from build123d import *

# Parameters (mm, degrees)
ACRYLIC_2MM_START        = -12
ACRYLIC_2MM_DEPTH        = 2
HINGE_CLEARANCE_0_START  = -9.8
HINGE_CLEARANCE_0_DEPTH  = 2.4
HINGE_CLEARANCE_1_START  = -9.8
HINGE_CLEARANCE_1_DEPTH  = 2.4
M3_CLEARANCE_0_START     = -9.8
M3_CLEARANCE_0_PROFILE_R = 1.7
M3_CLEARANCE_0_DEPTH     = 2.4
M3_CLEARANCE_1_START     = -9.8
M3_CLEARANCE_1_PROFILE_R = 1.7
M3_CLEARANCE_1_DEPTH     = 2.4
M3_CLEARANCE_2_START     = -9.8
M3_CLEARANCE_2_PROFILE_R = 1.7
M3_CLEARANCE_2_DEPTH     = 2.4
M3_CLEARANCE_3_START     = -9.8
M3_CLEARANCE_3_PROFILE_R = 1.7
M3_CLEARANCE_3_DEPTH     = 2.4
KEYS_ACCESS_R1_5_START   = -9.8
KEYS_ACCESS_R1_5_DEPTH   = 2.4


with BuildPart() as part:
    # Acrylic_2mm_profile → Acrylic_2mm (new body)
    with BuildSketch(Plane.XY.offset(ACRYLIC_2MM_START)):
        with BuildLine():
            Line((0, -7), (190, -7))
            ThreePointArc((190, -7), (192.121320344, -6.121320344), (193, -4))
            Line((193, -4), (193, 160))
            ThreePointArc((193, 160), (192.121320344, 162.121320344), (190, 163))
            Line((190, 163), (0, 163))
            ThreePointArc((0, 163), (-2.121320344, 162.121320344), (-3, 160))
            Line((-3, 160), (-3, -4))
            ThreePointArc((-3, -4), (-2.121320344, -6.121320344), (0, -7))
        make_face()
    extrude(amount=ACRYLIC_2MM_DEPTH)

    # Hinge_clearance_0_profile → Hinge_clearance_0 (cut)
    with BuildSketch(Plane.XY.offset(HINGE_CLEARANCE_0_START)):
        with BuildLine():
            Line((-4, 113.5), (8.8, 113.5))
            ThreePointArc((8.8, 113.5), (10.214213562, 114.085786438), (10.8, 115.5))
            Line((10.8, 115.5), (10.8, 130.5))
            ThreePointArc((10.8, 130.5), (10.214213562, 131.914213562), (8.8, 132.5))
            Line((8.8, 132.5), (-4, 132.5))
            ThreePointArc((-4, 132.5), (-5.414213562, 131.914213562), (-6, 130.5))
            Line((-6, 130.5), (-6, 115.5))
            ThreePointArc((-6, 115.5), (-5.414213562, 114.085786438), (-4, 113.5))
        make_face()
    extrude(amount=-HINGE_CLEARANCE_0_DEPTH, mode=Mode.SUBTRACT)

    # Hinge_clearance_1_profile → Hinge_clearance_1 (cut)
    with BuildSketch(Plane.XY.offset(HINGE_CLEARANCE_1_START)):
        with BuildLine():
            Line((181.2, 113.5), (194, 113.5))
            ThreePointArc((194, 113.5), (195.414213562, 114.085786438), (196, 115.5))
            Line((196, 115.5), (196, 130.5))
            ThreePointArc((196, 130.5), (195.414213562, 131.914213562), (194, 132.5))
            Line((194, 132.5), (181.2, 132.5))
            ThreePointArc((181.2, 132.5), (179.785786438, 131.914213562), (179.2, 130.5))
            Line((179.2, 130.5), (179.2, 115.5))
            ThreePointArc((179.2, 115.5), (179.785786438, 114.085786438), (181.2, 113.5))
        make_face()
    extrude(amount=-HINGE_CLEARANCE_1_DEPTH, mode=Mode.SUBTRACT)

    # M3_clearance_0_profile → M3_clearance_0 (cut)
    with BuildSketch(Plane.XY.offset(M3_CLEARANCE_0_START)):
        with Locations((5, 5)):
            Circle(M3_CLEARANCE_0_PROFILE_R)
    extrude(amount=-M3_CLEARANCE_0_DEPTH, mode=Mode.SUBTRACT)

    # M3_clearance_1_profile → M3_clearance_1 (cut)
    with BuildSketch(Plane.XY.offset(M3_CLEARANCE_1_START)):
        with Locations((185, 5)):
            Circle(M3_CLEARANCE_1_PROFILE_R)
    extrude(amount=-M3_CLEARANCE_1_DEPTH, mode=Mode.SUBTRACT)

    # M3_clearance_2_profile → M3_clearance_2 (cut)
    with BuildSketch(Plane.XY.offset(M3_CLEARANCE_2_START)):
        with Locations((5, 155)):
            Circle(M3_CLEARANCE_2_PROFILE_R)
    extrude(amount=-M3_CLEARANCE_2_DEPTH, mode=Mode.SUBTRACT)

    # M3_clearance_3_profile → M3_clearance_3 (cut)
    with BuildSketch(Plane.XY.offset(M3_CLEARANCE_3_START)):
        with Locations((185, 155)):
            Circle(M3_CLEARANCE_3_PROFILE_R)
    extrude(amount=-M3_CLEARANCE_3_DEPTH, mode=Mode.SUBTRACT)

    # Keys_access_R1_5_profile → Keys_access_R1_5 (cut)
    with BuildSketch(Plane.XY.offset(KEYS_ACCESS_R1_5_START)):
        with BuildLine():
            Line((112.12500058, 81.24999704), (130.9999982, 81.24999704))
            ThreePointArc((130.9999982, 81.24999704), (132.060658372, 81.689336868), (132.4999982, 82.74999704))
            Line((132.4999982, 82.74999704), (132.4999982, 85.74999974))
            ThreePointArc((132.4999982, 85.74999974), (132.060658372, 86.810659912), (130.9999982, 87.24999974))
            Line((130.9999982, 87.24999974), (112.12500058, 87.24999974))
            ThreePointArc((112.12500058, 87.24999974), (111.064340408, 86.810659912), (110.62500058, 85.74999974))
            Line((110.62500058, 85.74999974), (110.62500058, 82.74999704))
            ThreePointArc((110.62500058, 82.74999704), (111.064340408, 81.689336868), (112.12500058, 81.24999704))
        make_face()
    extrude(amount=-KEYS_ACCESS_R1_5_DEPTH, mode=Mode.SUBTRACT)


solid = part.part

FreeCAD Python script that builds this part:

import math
import FreeCAD as App
import Part
import Sketcher
Q = App.Units.Quantity

doc = App.newDocument("Part")
params = doc.addObject("Spreadsheet::Sheet", "Params")
for row, (alias, value) in enumerate([
    ("sketch1_radius", "3 mm"),
    ("sketch1_width", "190 mm"),
    ("sketch1_height", "164 mm"),
    ("pad1_length", "2 mm"),
    ("sketch2_radius", "2 mm"),
    ("sketch2_height", "15 mm"),
    ("sketch2_width", "12.8 mm"),
    ("pocket1_length", "2.4 mm"),
    ("sketch3_radius", "2 mm"),
    ("sketch3_height", "15 mm"),
    ("sketch3_width", "12.8 mm"),
    ("pocket2_length", "2.4 mm"),
    ("sketch4_diameter", "3.4 mm"),
    ("pocket3_length", "2.4 mm"),
    ("sketch5_diameter", "3.4 mm"),
    ("pocket4_length", "2.4 mm"),
    ("sketch6_diameter", "3.4 mm"),
    ("pocket5_length", "2.4 mm"),
    ("sketch7_diameter", "3.4 mm"),
    ("pocket6_length", "2.4 mm"),
    ("sketch8_radius", "1.5 mm"),
    ("pocket7_length", "2.4 mm"),
], start=1):
    params.set(f"A{row}", alias)
    params.set(f"B{row}", "=" + value)
    params.setAlias(f"B{row}", alias)

body = doc.addObject("PartDesign::Body", "Body")

sketch1 = body.newObject("Sketcher::SketchObject", "Sketch")
sketch1.AttachmentSupport = (doc.getObject("XY_Plane"), [""])
sketch1.MapMode = "FlatFace"
sketch1.AttachmentOffset = App.Placement(App.Vector(0, 0, -12), App.Rotation())
sketch1.addGeometry([
    Part.LineSegment(App.Vector(0, -7, 0), App.Vector(190, -7, 0)),
    Part.ArcOfCircle(Part.Circle(App.Vector(190, -4, 0), App.Vector(0, 0, 1), 3), math.radians(-90), math.radians(0)),
    Part.LineSegment(App.Vector(193, -4, 0), App.Vector(193, 160, 0)),
    Part.ArcOfCircle(Part.Circle(App.Vector(190, 160, 0), App.Vector(0, 0, 1), 3), math.radians(0), math.radians(90)),
    Part.LineSegment(App.Vector(190, 163, 0), App.Vector(0, 163, 0)),
    Part.ArcOfCircle(Part.Circle(App.Vector(0, 160, 0), App.Vector(0, 0, 1), 3), math.radians(90), math.radians(180)),
    Part.LineSegment(App.Vector(-3, 160, 0), App.Vector(-3, -4, 0)),
    Part.ArcOfCircle(Part.Circle(App.Vector(0, -4, 0), App.Vector(0, 0, 1), 3), math.radians(180), math.radians(270)),
], False)
sketch1.addConstraint([
    Sketcher.Constraint("Tangent", 0, 2, 1, 1),
    Sketcher.Constraint("Tangent", 1, 2, 2, 1),
    Sketcher.Constraint("Tangent", 2, 2, 3, 1),
    Sketcher.Constraint("Tangent", 3, 2, 4, 1),
    Sketcher.Constraint("Tangent", 4, 2, 5, 1),
    Sketcher.Constraint("Tangent", 5, 2, 6, 1),
    Sketcher.Constraint("Tangent", 6, 2, 7, 1),
    Sketcher.Constraint("Tangent", 7, 2, 0, 1),
    Sketcher.Constraint("Horizontal", 0),
    Sketcher.Constraint("Vertical", 2),
    Sketcher.Constraint("Horizontal", 4),
    Sketcher.Constraint("Vertical", 6),
    Sketcher.Constraint("Equal", 1, 3),
    Sketcher.Constraint("Equal", 3, 5),
    Sketcher.Constraint("Equal", 5, 7),
    Sketcher.Constraint("PointOnObject", 5, 3, -2),
    Sketcher.Constraint("Radius", 1, Q("3 mm")),
    Sketcher.Constraint("DistanceX", 0, 1, 0, 2, Q("190 mm")),
    Sketcher.Constraint("DistanceY", 2, 1, 2, 2, Q("164 mm")),
    Sketcher.Constraint("DistanceY", 1, 3, -1, 1, Q("4 mm")),
])
sketch1.setExpression("Constraints[16]", "Params.sketch1_radius")
sketch1.setExpression("Constraints[17]", "Params.sketch1_width")
sketch1.setExpression("Constraints[18]", "Params.sketch1_height")
pad1 = body.newObject("PartDesign::Pad", "Pad")
pad1.Profile = sketch1
pad1.setExpression("Length", "Params.pad1_length")

sketch2 = body.newObject("Sketcher::SketchObject", "Sketch001")
sketch2.AttachmentSupport = (doc.getObject("XY_Plane"), [""])
sketch2.MapMode = "FlatFace"
sketch2.AttachmentOffset = App.Placement(App.Vector(0, 0, -9.8), App.Rotation())
sketch2.addGeometry([
    Part.LineSegment(App.Vector(-4, 113.5, 0), App.Vector(8.8, 113.5, 0)),
    Part.ArcOfCircle(Part.Circle(App.Vector(8.8, 115.5, 0), App.Vector(0, 0, 1), 2), math.radians(-90), math.radians(0)),
    Part.LineSegment(App.Vector(10.8, 115.5, 0), App.Vector(10.8, 130.5, 0)),
    Part.ArcOfCircle(Part.Circle(App.Vector(8.8, 130.5, 0), App.Vector(0, 0, 1), 2), math.radians(0), math.radians(90)),
    Part.LineSegment(App.Vector(8.8, 132.5, 0), App.Vector(-4, 132.5, 0)),
    Part.ArcOfCircle(Part.Circle(App.Vector(-4, 130.5, 0), App.Vector(0, 0, 1), 2), math.radians(90), math.radians(180)),
    Part.LineSegment(App.Vector(-6, 130.5, 0), App.Vector(-6, 115.5, 0)),
    Part.ArcOfCircle(Part.Circle(App.Vector(-4, 115.5, 0), App.Vector(0, 0, 1), 2), math.radians(-180), math.radians(-90)),
], False)
sketch2.addConstraint([
    Sketcher.Constraint("Tangent", 0, 2, 1, 1),
    Sketcher.Constraint("Tangent", 1, 2, 2, 1),
    Sketcher.Constraint("Tangent", 2, 2, 3, 1),
    Sketcher.Constraint("Tangent", 3, 2, 4, 1),
    Sketcher.Constraint("Tangent", 4, 2, 5, 1),
    Sketcher.Constraint("Tangent", 5, 2, 6, 1),
    Sketcher.Constraint("Tangent", 6, 2, 7, 1),
    Sketcher.Constraint("Tangent", 7, 2, 0, 1),
    Sketcher.Constraint("Horizontal", 0),
    Sketcher.Constraint("Vertical", 2),
    Sketcher.Constraint("Horizontal", 4),
    Sketcher.Constraint("Vertical", 6),
    Sketcher.Constraint("Equal", 1, 3),
    Sketcher.Constraint("Equal", 3, 5),
    Sketcher.Constraint("Equal", 5, 7),
    Sketcher.Constraint("Radius", 1, Q("2 mm")),
    Sketcher.Constraint("DistanceY", 2, 1, 2, 2, Q("15 mm")),
    Sketcher.Constraint("DistanceX", 0, 1, 0, 2, Q("12.8 mm")),
    Sketcher.Constraint("DistanceX", 5, 3, -1, 1, Q("4 mm")),
    Sketcher.Constraint("DistanceY", -1, 1, 1, 3, Q("115.5 mm")),
])
sketch2.setExpression("Constraints[15]", "Params.sketch2_radius")
sketch2.setExpression("Constraints[16]", "Params.sketch2_height")
sketch2.setExpression("Constraints[17]", "Params.sketch2_width")
pocket1 = body.newObject("PartDesign::Pocket", "Pocket")
pocket1.Profile = sketch2
pocket1.setExpression("Length", "Params.pocket1_length")

sketch3 = body.newObject("Sketcher::SketchObject", "Sketch002")
sketch3.AttachmentSupport = (doc.getObject("XY_Plane"), [""])
sketch3.MapMode = "FlatFace"
sketch3.AttachmentOffset = App.Placement(App.Vector(0, 0, -9.8), App.Rotation())
sketch3.addGeometry([
    Part.LineSegment(App.Vector(181.2, 113.5, 0), App.Vector(194, 113.5, 0)),
    Part.ArcOfCircle(Part.Circle(App.Vector(194, 115.5, 0), App.Vector(0, 0, 1), 2), math.radians(-90), math.radians(0)),
    Part.LineSegment(App.Vector(196, 115.5, 0), App.Vector(196, 130.5, 0)),
    Part.ArcOfCircle(Part.Circle(App.Vector(194, 130.5, 0), App.Vector(0, 0, 1), 2), math.radians(0), math.radians(90)),
    Part.LineSegment(App.Vector(194, 132.5, 0), App.Vector(181.2, 132.5, 0)),
    Part.ArcOfCircle(Part.Circle(App.Vector(181.2, 130.5, 0), App.Vector(0, 0, 1), 2), math.radians(90), math.radians(180)),
    Part.LineSegment(App.Vector(179.2, 130.5, 0), App.Vector(179.2, 115.5, 0)),
    Part.ArcOfCircle(Part.Circle(App.Vector(181.2, 115.5, 0), App.Vector(0, 0, 1), 2), math.radians(-180), math.radians(-90)),
], False)
sketch3.addConstraint([
    Sketcher.Constraint("Tangent", 0, 2, 1, 1),
    Sketcher.Constraint("Tangent", 1, 2, 2, 1),
    Sketcher.Constraint("Tangent", 2, 2, 3, 1),
    Sketcher.Constraint("Tangent", 3, 2, 4, 1),
    Sketcher.Constraint("Tangent", 4, 2, 5, 1),
    Sketcher.Constraint("Tangent", 5, 2, 6, 1),
    Sketcher.Constraint("Tangent", 6, 2, 7, 1),
    Sketcher.Constraint("Tangent", 7, 2, 0, 1),
    Sketcher.Constraint("Horizontal", 0),
    Sketcher.Constraint("Vertical", 2),
    Sketcher.Constraint("Horizontal", 4),
    Sketcher.Constraint("Vertical", 6),
    Sketcher.Constraint("Equal", 1, 3),
    Sketcher.Constraint("Equal", 3, 5),
    Sketcher.Constraint("Equal", 5, 7),
    Sketcher.Constraint("Radius", 1, Q("2 mm")),
    Sketcher.Constraint("DistanceY", 2, 1, 2, 2, Q("15 mm")),
    Sketcher.Constraint("DistanceX", 0, 1, 0, 2, Q("12.8 mm")),
    Sketcher.Constraint("DistanceX", -1, 1, 1, 3, Q("194 mm")),
    Sketcher.Constraint("DistanceY", -1, 1, 1, 3, Q("115.5 mm")),
])
sketch3.setExpression("Constraints[15]", "Params.sketch3_radius")
sketch3.setExpression("Constraints[16]", "Params.sketch3_height")
sketch3.setExpression("Constraints[17]", "Params.sketch3_width")
pocket2 = body.newObject("PartDesign::Pocket", "Pocket001")
pocket2.Profile = sketch3
pocket2.setExpression("Length", "Params.pocket2_length")

sketch4 = body.newObject("Sketcher::SketchObject", "Sketch003")
sketch4.AttachmentSupport = (doc.getObject("XY_Plane"), [""])
sketch4.MapMode = "FlatFace"
sketch4.AttachmentOffset = App.Placement(App.Vector(0, 0, -9.8), App.Rotation())
sketch4.addGeometry(Part.Circle(App.Vector(5, 5, 0), App.Vector(0, 0, 1), 1.7), False)
sketch4.addConstraint([
    Sketcher.Constraint("Diameter", 0, Q("3.4 mm")),
    Sketcher.Constraint("DistanceX", -1, 1, 0, 3, Q("5 mm")),
    Sketcher.Constraint("DistanceY", -1, 1, 0, 3, Q("5 mm")),
])
sketch4.setExpression("Constraints[0]", "Params.sketch4_diameter")
pocket3 = body.newObject("PartDesign::Pocket", "Pocket002")
pocket3.Profile = sketch4
pocket3.setExpression("Length", "Params.pocket3_length")

sketch5 = body.newObject("Sketcher::SketchObject", "Sketch004")
sketch5.AttachmentSupport = (doc.getObject("XY_Plane"), [""])
sketch5.MapMode = "FlatFace"
sketch5.AttachmentOffset = App.Placement(App.Vector(0, 0, -9.8), App.Rotation())
sketch5.addGeometry(Part.Circle(App.Vector(185, 5, 0), App.Vector(0, 0, 1), 1.7), False)
sketch5.addConstraint([
    Sketcher.Constraint("Diameter", 0, Q("3.4 mm")),
    Sketcher.Constraint("DistanceX", -1, 1, 0, 3, Q("185 mm")),
    Sketcher.Constraint("DistanceY", -1, 1, 0, 3, Q("5 mm")),
])
sketch5.setExpression("Constraints[0]", "Params.sketch5_diameter")
pocket4 = body.newObject("PartDesign::Pocket", "Pocket003")
pocket4.Profile = sketch5
pocket4.setExpression("Length", "Params.pocket4_length")

sketch6 = body.newObject("Sketcher::SketchObject", "Sketch005")
sketch6.AttachmentSupport = (doc.getObject("XY_Plane"), [""])
sketch6.MapMode = "FlatFace"
sketch6.AttachmentOffset = App.Placement(App.Vector(0, 0, -9.8), App.Rotation())
sketch6.addGeometry(Part.Circle(App.Vector(5, 155, 0), App.Vector(0, 0, 1), 1.7), False)
sketch6.addConstraint([
    Sketcher.Constraint("Diameter", 0, Q("3.4 mm")),
    Sketcher.Constraint("DistanceX", -1, 1, 0, 3, Q("5 mm")),
    Sketcher.Constraint("DistanceY", -1, 1, 0, 3, Q("155 mm")),
])
sketch6.setExpression("Constraints[0]", "Params.sketch6_diameter")
pocket5 = body.newObject("PartDesign::Pocket", "Pocket004")
pocket5.Profile = sketch6
pocket5.setExpression("Length", "Params.pocket5_length")

sketch7 = body.newObject("Sketcher::SketchObject", "Sketch006")
sketch7.AttachmentSupport = (doc.getObject("XY_Plane"), [""])
sketch7.MapMode = "FlatFace"
sketch7.AttachmentOffset = App.Placement(App.Vector(0, 0, -9.8), App.Rotation())
sketch7.addGeometry(Part.Circle(App.Vector(185, 155, 0), App.Vector(0, 0, 1), 1.7), False)
sketch7.addConstraint([
    Sketcher.Constraint("Diameter", 0, Q("3.4 mm")),
    Sketcher.Constraint("DistanceX", -1, 1, 0, 3, Q("185 mm")),
    Sketcher.Constraint("DistanceY", -1, 1, 0, 3, Q("155 mm")),
])
sketch7.setExpression("Constraints[0]", "Params.sketch7_diameter")
pocket6 = body.newObject("PartDesign::Pocket", "Pocket005")
pocket6.Profile = sketch7
pocket6.setExpression("Length", "Params.pocket6_length")

sketch8 = body.newObject("Sketcher::SketchObject", "Sketch007")
sketch8.AttachmentSupport = (doc.getObject("XY_Plane"), [""])
sketch8.MapMode = "FlatFace"
sketch8.AttachmentOffset = App.Placement(App.Vector(0, 0, -9.8), App.Rotation())
sketch8.addGeometry([
    Part.LineSegment(App.Vector(112.1, 81.2, 0), App.Vector(131, 81.2, 0)),
    Part.ArcOfCircle(Part.Circle(App.Vector(131, 82.7, 0), App.Vector(0, 0, 1), 1.5), math.radians(-90), math.radians(0)),
    Part.LineSegment(App.Vector(132.5, 82.7, 0), App.Vector(132.5, 85.7, 0)),
    Part.ArcOfCircle(Part.Circle(App.Vector(131, 85.7, 0), App.Vector(0, 0, 1), 1.5), math.radians(0), math.radians(90)),
    Part.LineSegment(App.Vector(131, 87.2, 0), App.Vector(112.1, 87.2, 0)),
    Part.ArcOfCircle(Part.Circle(App.Vector(112.1, 85.7, 0), App.Vector(0, 0, 1), 1.5), math.radians(90), math.radians(180)),
    Part.LineSegment(App.Vector(110.6, 85.7, 0), App.Vector(110.6, 82.7, 0)),
    Part.ArcOfCircle(Part.Circle(App.Vector(112.1, 82.7, 0), App.Vector(0, 0, 1), 1.5), math.radians(180), math.radians(270)),
], False)
sketch8.addConstraint([
    Sketcher.Constraint("Tangent", 0, 2, 1, 1),
    Sketcher.Constraint("Tangent", 1, 2, 2, 1),
    Sketcher.Constraint("Tangent", 2, 2, 3, 1),
    Sketcher.Constraint("Tangent", 3, 2, 4, 1),
    Sketcher.Constraint("Tangent", 4, 2, 5, 1),
    Sketcher.Constraint("Tangent", 5, 2, 6, 1),
    Sketcher.Constraint("Tangent", 6, 2, 7, 1),
    Sketcher.Constraint("Tangent", 7, 2, 0, 1),
    Sketcher.Constraint("Horizontal", 0),
    Sketcher.Constraint("Vertical", 2),
    Sketcher.Constraint("Horizontal", 4),
    Sketcher.Constraint("Vertical", 6),
    Sketcher.Constraint("Equal", 1, 3),
    Sketcher.Constraint("Equal", 3, 5),
    Sketcher.Constraint("Equal", 5, 7),
    Sketcher.Constraint("Radius", 1, Q("1.5 mm")),
    Sketcher.Constraint("DistanceX", -1, 1, 1, 3, Q("130.999998 mm")),
    Sketcher.Constraint("DistanceY", -1, 1, 3, 3, Q("85.75 mm")),
    Sketcher.Constraint("DistanceX", -1, 1, 5, 3, Q("112.125001 mm")),
    Sketcher.Constraint("DistanceY", 2, 1, 2, 2, Q("3.000003 mm")),
])
sketch8.setExpression("Constraints[15]", "Params.sketch8_radius")
pocket7 = body.newObject("PartDesign::Pocket", "Pocket006")
pocket7.Profile = sketch8
pocket7.setExpression("Length", "Params.pocket7_length")

doc.recompute()
